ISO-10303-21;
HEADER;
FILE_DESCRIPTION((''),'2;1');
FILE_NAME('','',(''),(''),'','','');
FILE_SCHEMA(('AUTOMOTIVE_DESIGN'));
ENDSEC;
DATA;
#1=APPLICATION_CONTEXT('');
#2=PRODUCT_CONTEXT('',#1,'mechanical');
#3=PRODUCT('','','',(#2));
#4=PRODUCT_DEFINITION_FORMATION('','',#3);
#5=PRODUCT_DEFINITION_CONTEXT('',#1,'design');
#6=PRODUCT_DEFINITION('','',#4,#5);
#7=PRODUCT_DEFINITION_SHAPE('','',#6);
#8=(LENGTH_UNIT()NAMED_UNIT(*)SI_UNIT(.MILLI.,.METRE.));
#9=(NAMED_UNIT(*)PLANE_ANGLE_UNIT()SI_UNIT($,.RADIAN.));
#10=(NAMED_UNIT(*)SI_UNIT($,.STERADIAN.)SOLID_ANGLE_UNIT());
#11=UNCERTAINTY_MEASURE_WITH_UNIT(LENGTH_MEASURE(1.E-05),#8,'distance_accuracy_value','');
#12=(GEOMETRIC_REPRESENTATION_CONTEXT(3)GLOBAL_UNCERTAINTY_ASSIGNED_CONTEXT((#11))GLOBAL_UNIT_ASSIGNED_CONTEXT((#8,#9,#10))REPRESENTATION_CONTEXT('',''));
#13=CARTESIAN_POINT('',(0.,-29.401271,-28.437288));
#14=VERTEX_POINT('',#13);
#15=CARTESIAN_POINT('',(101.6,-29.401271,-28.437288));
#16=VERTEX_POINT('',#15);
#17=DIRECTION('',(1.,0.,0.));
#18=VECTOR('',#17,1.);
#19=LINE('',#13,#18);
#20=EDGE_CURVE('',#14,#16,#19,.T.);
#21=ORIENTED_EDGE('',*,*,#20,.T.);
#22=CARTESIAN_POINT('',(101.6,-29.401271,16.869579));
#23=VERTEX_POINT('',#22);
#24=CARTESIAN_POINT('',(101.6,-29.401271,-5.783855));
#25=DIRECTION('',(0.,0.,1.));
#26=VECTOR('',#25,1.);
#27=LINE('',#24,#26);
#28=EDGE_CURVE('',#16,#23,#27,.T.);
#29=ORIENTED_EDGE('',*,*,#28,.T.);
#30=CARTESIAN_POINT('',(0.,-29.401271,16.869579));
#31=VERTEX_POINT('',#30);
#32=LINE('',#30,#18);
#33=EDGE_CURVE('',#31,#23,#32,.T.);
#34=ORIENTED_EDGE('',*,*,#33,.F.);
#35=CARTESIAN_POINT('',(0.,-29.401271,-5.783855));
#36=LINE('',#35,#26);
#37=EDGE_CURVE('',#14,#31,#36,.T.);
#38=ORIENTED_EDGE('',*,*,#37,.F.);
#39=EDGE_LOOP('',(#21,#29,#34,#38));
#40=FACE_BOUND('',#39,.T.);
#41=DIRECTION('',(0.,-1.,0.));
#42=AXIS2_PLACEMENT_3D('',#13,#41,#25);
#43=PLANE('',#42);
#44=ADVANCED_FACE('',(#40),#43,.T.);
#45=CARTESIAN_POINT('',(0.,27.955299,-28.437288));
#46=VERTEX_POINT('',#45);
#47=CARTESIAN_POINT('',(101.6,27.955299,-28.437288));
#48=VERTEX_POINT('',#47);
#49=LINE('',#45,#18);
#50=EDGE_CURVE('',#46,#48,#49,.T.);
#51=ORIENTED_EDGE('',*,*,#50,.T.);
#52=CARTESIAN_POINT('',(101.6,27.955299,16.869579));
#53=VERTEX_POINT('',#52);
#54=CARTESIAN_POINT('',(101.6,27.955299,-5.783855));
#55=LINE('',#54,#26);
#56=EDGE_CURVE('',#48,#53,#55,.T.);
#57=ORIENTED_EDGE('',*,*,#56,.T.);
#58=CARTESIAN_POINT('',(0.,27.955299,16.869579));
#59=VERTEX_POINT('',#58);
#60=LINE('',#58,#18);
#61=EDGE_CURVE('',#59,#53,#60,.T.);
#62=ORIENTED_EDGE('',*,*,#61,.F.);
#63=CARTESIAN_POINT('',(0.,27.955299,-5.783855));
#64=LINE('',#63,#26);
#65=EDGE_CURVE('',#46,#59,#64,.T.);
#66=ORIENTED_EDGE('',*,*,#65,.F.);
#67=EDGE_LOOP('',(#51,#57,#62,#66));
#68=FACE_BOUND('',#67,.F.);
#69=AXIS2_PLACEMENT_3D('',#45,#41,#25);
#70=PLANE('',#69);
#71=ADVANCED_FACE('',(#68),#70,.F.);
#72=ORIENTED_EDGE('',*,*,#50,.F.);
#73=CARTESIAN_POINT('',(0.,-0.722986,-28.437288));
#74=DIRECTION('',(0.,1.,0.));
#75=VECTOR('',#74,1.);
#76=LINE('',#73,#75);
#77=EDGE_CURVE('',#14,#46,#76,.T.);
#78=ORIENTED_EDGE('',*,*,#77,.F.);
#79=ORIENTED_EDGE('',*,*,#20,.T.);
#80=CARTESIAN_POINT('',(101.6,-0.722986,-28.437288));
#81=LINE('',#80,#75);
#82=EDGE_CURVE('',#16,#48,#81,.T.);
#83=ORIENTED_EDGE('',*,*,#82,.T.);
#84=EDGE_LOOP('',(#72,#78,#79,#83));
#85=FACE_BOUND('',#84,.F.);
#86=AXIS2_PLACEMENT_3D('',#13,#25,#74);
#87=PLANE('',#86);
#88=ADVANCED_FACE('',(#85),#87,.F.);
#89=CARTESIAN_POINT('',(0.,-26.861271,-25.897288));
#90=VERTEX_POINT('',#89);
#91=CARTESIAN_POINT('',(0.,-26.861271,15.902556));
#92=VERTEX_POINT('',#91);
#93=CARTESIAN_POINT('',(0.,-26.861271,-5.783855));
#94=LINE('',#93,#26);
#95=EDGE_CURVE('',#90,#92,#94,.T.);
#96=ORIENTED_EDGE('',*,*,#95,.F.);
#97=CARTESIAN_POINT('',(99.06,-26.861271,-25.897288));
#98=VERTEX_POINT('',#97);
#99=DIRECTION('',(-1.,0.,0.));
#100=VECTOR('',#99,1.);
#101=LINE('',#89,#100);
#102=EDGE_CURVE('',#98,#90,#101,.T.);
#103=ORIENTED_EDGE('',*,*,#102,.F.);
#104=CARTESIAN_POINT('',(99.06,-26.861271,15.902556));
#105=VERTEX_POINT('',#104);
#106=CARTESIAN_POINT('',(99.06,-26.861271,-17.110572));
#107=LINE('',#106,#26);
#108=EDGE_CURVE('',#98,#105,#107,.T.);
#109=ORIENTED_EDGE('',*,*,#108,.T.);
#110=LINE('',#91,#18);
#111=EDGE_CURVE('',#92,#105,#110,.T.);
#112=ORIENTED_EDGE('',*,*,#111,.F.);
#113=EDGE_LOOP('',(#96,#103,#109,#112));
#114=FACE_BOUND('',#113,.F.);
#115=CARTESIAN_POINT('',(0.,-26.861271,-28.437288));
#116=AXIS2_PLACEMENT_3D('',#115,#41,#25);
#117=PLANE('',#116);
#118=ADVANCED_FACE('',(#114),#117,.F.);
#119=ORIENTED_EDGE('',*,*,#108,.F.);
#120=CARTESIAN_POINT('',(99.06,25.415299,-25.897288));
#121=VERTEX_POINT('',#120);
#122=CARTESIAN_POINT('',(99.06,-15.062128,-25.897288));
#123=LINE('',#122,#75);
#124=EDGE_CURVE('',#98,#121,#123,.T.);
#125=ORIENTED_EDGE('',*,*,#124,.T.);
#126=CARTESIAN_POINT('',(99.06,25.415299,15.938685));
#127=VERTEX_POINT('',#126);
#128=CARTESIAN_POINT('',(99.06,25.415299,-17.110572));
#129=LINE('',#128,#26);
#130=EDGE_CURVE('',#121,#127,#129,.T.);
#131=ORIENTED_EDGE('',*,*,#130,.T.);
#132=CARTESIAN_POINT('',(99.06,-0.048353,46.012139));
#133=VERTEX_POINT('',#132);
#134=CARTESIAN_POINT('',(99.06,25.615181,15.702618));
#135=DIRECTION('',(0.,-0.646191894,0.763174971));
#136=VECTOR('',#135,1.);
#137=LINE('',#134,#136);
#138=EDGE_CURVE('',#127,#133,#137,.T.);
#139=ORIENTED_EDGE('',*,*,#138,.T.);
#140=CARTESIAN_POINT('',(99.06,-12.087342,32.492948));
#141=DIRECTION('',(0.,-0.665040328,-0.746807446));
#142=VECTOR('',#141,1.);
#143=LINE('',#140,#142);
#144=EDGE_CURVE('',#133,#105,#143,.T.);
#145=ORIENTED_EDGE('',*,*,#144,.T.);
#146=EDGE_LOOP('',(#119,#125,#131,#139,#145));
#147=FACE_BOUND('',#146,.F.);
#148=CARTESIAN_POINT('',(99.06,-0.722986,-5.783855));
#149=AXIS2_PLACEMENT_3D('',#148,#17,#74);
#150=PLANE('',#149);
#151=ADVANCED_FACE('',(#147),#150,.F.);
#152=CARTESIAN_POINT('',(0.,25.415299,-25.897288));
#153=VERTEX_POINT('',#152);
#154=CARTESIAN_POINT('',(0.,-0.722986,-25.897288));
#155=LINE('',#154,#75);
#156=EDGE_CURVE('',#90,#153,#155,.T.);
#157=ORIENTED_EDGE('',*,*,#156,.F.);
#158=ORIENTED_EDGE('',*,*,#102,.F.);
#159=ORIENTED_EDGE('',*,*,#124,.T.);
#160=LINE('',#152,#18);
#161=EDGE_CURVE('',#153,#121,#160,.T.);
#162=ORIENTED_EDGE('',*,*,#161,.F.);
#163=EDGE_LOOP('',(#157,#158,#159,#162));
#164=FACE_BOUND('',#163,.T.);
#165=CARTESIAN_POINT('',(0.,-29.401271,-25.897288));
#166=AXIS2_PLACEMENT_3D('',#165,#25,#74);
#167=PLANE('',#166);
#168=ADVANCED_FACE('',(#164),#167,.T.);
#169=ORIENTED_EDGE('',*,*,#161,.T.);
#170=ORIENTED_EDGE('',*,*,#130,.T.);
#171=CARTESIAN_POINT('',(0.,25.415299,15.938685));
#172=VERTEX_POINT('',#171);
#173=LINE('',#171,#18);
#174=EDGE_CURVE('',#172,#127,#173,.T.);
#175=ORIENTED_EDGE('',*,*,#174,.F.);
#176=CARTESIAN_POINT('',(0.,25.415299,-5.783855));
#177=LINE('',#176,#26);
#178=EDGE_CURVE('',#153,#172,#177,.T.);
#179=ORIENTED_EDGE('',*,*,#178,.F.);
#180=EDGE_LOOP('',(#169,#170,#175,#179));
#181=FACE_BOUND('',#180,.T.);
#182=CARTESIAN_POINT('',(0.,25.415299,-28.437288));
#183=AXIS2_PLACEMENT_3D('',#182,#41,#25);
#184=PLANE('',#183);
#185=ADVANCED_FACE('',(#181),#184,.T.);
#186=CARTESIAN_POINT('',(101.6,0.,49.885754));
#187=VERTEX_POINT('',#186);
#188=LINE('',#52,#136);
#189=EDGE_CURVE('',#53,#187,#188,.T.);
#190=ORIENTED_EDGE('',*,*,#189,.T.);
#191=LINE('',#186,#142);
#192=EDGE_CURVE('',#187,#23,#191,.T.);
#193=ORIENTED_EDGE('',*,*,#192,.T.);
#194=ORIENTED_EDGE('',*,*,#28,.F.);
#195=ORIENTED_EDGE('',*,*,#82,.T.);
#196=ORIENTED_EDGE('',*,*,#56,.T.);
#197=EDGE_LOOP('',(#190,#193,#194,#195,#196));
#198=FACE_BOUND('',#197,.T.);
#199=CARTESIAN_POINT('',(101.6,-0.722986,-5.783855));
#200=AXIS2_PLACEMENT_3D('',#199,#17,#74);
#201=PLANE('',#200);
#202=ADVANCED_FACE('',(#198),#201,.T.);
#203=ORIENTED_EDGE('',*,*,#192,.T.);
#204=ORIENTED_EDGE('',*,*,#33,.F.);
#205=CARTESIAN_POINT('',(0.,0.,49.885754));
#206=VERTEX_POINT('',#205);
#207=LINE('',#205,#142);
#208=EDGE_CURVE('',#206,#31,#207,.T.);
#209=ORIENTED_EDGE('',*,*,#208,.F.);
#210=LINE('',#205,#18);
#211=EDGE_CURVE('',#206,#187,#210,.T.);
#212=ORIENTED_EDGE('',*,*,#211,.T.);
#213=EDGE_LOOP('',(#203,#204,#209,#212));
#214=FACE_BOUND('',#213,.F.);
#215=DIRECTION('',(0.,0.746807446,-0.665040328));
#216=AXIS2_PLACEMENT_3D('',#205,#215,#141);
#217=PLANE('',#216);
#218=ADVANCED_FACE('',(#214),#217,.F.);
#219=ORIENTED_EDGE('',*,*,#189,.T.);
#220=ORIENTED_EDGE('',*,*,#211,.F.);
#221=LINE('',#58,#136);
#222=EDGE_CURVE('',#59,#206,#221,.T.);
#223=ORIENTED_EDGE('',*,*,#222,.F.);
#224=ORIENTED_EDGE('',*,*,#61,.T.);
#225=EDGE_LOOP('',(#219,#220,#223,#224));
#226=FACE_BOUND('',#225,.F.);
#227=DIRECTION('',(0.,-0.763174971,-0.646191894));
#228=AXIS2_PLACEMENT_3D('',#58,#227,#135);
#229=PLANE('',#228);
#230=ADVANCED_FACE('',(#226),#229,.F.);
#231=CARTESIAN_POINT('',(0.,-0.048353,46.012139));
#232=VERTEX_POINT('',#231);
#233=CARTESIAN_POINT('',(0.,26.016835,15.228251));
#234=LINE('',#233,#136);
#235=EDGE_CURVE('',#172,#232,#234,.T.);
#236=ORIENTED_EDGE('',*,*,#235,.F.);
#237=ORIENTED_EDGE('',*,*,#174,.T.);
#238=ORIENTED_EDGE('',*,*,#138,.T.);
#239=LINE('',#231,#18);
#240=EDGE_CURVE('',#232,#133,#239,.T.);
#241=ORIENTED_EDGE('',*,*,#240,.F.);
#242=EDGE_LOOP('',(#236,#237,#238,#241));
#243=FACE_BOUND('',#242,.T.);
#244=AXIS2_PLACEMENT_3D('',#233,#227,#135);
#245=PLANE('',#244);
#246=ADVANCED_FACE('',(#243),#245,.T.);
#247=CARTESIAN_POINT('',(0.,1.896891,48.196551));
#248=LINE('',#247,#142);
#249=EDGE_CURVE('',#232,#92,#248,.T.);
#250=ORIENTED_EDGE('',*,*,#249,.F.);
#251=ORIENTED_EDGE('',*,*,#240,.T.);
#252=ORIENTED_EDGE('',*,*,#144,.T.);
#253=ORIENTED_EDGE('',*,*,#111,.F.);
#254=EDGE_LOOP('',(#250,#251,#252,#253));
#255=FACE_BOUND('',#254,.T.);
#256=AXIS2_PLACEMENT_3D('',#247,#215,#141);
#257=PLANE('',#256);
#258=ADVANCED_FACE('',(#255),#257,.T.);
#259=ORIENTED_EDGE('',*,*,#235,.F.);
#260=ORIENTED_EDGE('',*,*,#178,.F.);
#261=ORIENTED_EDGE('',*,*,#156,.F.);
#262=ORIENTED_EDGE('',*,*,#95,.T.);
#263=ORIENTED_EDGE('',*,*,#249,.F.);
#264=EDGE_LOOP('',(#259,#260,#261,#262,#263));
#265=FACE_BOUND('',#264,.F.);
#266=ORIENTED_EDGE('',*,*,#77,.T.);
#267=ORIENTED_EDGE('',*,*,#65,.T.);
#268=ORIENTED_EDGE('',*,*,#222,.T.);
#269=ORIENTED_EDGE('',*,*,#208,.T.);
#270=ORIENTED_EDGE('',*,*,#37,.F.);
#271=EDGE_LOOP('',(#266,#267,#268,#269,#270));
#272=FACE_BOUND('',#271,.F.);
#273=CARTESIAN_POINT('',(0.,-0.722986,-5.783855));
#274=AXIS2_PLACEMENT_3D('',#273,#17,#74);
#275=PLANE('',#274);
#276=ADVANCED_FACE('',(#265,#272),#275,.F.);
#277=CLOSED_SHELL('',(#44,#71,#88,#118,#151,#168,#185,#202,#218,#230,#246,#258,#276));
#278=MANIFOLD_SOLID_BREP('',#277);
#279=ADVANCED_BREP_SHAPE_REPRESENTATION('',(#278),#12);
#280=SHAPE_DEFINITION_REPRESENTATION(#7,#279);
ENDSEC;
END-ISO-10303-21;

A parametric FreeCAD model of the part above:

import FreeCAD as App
import Part
import Sketcher
Q = App.Units.Quantity


def faces_at(feature, points):
    """Names of the faces that lie closest to the given points."""
    faces = feature.Shape.Faces
    near = lambda p: min(range(len(faces)), key=lambda i: faces[i].distToShape(Part.Vertex(*p))[0])
    return sorted({f"Face{near(p) + 1}" for p in points})

doc = App.newDocument("Part")
body = doc.addObject("PartDesign::Body", "Body")

# Sketch on YZ plane
sketch1 = body.newObject("Sketcher::SketchObject", "Sketch")
sketch1.AttachmentSupport = (doc.getObject("YZ_Plane"), [""])
sketch1.MapMode = "FlatFace"
sketch1.addGeometry(Part.LineSegment(App.Vector(-29, 17, 0), App.Vector(-29, -28, 0)), False)
sketch1.addGeometry(Part.LineSegment(App.Vector(-29, -28, 0), App.Vector(28, -28, 0)), False)
sketch1.addGeometry(Part.LineSegment(App.Vector(28, -28, 0), App.Vector(28, 17, 0)), False)
sketch1.addGeometry(Part.LineSegment(App.Vector(28, 17, 0), App.Vector(0, 50, 0)), False)
sketch1.addGeometry(Part.LineSegment(App.Vector(0, 50, 0), App.Vector(-29, 17, 0)), False)
sketch1.addConstraint(Sketcher.Constraint("Coincident", 0, 2, 1, 1))
sketch1.addConstraint(Sketcher.Constraint("Coincident", 1, 2, 2, 1))
sketch1.addConstraint(Sketcher.Constraint("Coincident", 2, 2, 3, 1))
sketch1.addConstraint(Sketcher.Constraint("Coincident", 3, 2, 4, 1))
sketch1.addConstraint(Sketcher.Constraint("Coincident", 4, 2, 0, 1))
sketch1.addConstraint(Sketcher.Constraint("Vertical", 0))
sketch1.addConstraint(Sketcher.Constraint("Horizontal", 1))
sketch1.addConstraint(Sketcher.Constraint("Vertical", 2))
sketch1.addConstraint(Sketcher.Constraint("PointOnObject", 3, 2, -2))
sketch1.addConstraint(Sketcher.Constraint("Horizontal", 2, 2, 4, 2))
sketch1.addConstraint(Sketcher.Constraint("DistanceX", 1, 1, 1, 2, 57.35657))
sketch1.addConstraint(Sketcher.Constraint("DistanceX", -1, 1, 1, 2, 27.955299))
sketch1.addConstraint(Sketcher.Constraint("DistanceY", 0, 2, 0, 1, 45.306867))
sketch1.addConstraint(Sketcher.Constraint("DistanceY", 0, 2, -1, 1, 28.437288))
sketch1.addConstraint(Sketcher.Constraint("Distance", 3, 43.261606))
pad1 = body.newObject("PartDesign::Pad", "Pad")
pad1.Profile = sketch1
pad1.Length = Q("4 in")
doc.recompute()

thickness = body.newObject("PartDesign::Thickness", "Thickness")
thickness.Base = (pad1, faces_at(pad1, [(0, -0.723, 10.724)]))
thickness.Value = Q("0.1 in")
thickness.Reversed = True
thickness.Join = "Arc"

doc.recompute()
